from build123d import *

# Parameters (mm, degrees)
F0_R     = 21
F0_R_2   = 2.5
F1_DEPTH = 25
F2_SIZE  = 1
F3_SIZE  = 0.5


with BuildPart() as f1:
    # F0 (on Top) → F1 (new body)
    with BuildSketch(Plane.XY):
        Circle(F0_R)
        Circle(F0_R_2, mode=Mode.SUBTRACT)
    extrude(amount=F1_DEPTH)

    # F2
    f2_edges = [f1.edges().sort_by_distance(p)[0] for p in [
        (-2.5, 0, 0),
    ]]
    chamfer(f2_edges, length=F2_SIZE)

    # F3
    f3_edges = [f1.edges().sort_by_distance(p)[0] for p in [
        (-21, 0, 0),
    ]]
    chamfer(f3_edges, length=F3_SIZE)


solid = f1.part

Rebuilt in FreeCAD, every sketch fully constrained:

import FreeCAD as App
import Part
import Sketcher
from FreeCAD import Vector
Q = App.Units.Quantity


def edges_at(feature, points):
    """Names of the edges that pass closest to the given points."""
    edges = feature.Shape.Edges
    near = lambda p: min(range(len(edges)), key=lambda i: edges[i].distToShape(Part.Vertex(*p))[0])
    return sorted({f"Edge{near(p) + 1}" for p in points})

doc = App.newDocument("Part")
body = doc.addObject("PartDesign::Body", "Body")

sketch1 = body.newObject("Sketcher::SketchObject", "Sketch")
sketch1.AttachmentSupport = (doc.getObject("XY_Plane"), [""])
sketch1.MapMode = "FlatFace"
sketch1.addGeometry(Part.Circle(Vector(0, 0, 0), Vector(0, 0, 1), 21), False)
sketch1.addGeometry(Part.Circle(Vector(0, 0, 0), Vector(0, 0, 1), 2.5), False)
sketch1.addConstraint(Sketcher.Constraint("Coincident", 0, 3, -1, 1))
sketch1.addConstraint(Sketcher.Constraint("Coincident", 1, 3, -1, 1))
sketch1.addConstraint(Sketcher.Constraint("Diameter", 0, Q("42 mm")))
sketch1.addConstraint(Sketcher.Constraint("Diameter", 1, Q("5 mm")))
pad1 = body.newObject("PartDesign::Pad", "Pad")
pad1.Profile = sketch1
pad1.Length = 25
doc.recompute()

chamfer = body.newObject("PartDesign::Chamfer", "Chamfer")
chamfer.Base = (pad1, edges_at(pad1, [(-2.5, 0, 0)]))
chamfer.Size = 1
doc.recompute()

chamfer2 = body.newObject("PartDesign::Chamfer", "Chamfer001")
chamfer2.Base = (chamfer, edges_at(chamfer, [(-21, 0, 0)]))
chamfer2.Size = 0.5

doc.recompute()
